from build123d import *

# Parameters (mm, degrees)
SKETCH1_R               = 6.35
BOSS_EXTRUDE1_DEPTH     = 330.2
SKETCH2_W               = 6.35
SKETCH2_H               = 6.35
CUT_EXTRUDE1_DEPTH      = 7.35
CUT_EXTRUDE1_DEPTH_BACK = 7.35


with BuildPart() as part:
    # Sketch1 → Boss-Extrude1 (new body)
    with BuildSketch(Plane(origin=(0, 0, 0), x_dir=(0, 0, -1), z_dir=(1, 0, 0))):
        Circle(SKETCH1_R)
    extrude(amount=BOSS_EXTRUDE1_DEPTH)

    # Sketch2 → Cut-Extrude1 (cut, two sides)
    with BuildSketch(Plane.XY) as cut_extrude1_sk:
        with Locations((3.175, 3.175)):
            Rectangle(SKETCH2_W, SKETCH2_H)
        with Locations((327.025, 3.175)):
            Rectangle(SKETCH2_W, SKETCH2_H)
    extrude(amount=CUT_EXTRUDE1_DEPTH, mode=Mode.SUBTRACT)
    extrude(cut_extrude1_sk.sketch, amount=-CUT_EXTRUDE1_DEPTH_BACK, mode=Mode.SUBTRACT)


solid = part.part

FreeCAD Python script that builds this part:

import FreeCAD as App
import Part
import Sketcher
from FreeCAD import Vector
Q = App.Units.Quantity


def add_polygon(sketch, points):
    """Adds a closed chain of lines whose ends are joined by coincident constraints."""
    first, n = sketch.GeometryCount, len(points)
    for a, b in zip(points, points[1:] + points[:1]):
        sketch.addGeometry(Part.LineSegment(App.Vector(*a, 0), App.Vector(*b, 0)), False)
    for i in range(n):
        sketch.addConstraint(Sketcher.Constraint("Coincident", first + i, 2, first + (i + 1) % n, 1))

doc = App.newDocument("Part")
params = doc.addObject("Spreadsheet::Sheet", "Params")
for row, (alias, value) in enumerate([
    ("sketch1_diameter", "0.5 in"),
    ("pad1_length", "13 in"),
    ("sketch2_width", "0.25 in"),
], start=1):
    params.set(f"A{row}", alias)
    params.set(f"B{row}", "=" + value)
    params.setAlias(f"B{row}", alias)

body = doc.addObject("PartDesign::Body", "Body")

# Sketch on YZ plane
sketch1 = body.newObject("Sketcher::SketchObject", "Sketch")
sketch1.AttachmentSupport = (doc.getObject("YZ_Plane"), [""])
sketch1.MapMode = "FlatFace"
sketch1.addGeometry(Part.Circle(Vector(0, 0, 0), Vector(0, 0, 1), 6), False)
sketch1.addConstraint([
    Sketcher.Constraint("Coincident", 0, 3, -1, 1),
    Sketcher.Constraint("Diameter", 0, Q("0.5 in")),
])
sketch1.setExpression("Constraints[1]", "Params.sketch1_diameter")
pad1 = body.newObject("PartDesign::Pad", "Pad")
pad1.Profile = sketch1
pad1.setExpression("Length", "Params.pad1_length")

# Sketch on XY plane
sketch2 = body.newObject("Sketcher::SketchObject", "Sketch001")
sketch2.AttachmentSupport = (doc.getObject("XY_Plane"), [""])
sketch2.MapMode = "FlatFace"
add_polygon(sketch2, [(0, 6), (0, 0), (6, 0), (6, 6)])  # lines 0-3
add_polygon(sketch2, [(324, 6), (324, 0), (330, 0), (330, 6)])  # lines 4-7
sketch2.addConstraint([
    Sketcher.Constraint("Vertical", 0),
    Sketcher.Constraint("Horizontal", 1),
    Sketcher.Constraint("Vertical", 2),
    Sketcher.Constraint("Horizontal", 3),
    Sketcher.Constraint("Vertical", 4),
    Sketcher.Constraint("Horizontal", 5),
    Sketcher.Constraint("Vertical", 6),
    Sketcher.Constraint("Horizontal", 7),
    Sketcher.Constraint("Coincident", 0, 2, -1, 1),
    Sketcher.Constraint("PointOnObject", 4, 2, -1),
    Sketcher.Constraint("Horizontal", 3, 2, 6, 2),
    Sketcher.Constraint("Equal", 3, 5),
    Sketcher.Constraint("Equal", 7, 0),
    Sketcher.Constraint("DistanceX", -1, 1, 5, 2, Q("13 in")),
    Sketcher.Constraint("DistanceX", 1, 1, 1, 2, Q("0.25 in")),
])
sketch2.setExpression("Constraints[22]", "Params.sketch2_width")
pocket1 = body.newObject("PartDesign::Pocket", "Pocket")
pocket1.Profile = sketch2
pocket1.Type = "ThroughAll"
pocket1.Midplane = True

doc.recompute()
